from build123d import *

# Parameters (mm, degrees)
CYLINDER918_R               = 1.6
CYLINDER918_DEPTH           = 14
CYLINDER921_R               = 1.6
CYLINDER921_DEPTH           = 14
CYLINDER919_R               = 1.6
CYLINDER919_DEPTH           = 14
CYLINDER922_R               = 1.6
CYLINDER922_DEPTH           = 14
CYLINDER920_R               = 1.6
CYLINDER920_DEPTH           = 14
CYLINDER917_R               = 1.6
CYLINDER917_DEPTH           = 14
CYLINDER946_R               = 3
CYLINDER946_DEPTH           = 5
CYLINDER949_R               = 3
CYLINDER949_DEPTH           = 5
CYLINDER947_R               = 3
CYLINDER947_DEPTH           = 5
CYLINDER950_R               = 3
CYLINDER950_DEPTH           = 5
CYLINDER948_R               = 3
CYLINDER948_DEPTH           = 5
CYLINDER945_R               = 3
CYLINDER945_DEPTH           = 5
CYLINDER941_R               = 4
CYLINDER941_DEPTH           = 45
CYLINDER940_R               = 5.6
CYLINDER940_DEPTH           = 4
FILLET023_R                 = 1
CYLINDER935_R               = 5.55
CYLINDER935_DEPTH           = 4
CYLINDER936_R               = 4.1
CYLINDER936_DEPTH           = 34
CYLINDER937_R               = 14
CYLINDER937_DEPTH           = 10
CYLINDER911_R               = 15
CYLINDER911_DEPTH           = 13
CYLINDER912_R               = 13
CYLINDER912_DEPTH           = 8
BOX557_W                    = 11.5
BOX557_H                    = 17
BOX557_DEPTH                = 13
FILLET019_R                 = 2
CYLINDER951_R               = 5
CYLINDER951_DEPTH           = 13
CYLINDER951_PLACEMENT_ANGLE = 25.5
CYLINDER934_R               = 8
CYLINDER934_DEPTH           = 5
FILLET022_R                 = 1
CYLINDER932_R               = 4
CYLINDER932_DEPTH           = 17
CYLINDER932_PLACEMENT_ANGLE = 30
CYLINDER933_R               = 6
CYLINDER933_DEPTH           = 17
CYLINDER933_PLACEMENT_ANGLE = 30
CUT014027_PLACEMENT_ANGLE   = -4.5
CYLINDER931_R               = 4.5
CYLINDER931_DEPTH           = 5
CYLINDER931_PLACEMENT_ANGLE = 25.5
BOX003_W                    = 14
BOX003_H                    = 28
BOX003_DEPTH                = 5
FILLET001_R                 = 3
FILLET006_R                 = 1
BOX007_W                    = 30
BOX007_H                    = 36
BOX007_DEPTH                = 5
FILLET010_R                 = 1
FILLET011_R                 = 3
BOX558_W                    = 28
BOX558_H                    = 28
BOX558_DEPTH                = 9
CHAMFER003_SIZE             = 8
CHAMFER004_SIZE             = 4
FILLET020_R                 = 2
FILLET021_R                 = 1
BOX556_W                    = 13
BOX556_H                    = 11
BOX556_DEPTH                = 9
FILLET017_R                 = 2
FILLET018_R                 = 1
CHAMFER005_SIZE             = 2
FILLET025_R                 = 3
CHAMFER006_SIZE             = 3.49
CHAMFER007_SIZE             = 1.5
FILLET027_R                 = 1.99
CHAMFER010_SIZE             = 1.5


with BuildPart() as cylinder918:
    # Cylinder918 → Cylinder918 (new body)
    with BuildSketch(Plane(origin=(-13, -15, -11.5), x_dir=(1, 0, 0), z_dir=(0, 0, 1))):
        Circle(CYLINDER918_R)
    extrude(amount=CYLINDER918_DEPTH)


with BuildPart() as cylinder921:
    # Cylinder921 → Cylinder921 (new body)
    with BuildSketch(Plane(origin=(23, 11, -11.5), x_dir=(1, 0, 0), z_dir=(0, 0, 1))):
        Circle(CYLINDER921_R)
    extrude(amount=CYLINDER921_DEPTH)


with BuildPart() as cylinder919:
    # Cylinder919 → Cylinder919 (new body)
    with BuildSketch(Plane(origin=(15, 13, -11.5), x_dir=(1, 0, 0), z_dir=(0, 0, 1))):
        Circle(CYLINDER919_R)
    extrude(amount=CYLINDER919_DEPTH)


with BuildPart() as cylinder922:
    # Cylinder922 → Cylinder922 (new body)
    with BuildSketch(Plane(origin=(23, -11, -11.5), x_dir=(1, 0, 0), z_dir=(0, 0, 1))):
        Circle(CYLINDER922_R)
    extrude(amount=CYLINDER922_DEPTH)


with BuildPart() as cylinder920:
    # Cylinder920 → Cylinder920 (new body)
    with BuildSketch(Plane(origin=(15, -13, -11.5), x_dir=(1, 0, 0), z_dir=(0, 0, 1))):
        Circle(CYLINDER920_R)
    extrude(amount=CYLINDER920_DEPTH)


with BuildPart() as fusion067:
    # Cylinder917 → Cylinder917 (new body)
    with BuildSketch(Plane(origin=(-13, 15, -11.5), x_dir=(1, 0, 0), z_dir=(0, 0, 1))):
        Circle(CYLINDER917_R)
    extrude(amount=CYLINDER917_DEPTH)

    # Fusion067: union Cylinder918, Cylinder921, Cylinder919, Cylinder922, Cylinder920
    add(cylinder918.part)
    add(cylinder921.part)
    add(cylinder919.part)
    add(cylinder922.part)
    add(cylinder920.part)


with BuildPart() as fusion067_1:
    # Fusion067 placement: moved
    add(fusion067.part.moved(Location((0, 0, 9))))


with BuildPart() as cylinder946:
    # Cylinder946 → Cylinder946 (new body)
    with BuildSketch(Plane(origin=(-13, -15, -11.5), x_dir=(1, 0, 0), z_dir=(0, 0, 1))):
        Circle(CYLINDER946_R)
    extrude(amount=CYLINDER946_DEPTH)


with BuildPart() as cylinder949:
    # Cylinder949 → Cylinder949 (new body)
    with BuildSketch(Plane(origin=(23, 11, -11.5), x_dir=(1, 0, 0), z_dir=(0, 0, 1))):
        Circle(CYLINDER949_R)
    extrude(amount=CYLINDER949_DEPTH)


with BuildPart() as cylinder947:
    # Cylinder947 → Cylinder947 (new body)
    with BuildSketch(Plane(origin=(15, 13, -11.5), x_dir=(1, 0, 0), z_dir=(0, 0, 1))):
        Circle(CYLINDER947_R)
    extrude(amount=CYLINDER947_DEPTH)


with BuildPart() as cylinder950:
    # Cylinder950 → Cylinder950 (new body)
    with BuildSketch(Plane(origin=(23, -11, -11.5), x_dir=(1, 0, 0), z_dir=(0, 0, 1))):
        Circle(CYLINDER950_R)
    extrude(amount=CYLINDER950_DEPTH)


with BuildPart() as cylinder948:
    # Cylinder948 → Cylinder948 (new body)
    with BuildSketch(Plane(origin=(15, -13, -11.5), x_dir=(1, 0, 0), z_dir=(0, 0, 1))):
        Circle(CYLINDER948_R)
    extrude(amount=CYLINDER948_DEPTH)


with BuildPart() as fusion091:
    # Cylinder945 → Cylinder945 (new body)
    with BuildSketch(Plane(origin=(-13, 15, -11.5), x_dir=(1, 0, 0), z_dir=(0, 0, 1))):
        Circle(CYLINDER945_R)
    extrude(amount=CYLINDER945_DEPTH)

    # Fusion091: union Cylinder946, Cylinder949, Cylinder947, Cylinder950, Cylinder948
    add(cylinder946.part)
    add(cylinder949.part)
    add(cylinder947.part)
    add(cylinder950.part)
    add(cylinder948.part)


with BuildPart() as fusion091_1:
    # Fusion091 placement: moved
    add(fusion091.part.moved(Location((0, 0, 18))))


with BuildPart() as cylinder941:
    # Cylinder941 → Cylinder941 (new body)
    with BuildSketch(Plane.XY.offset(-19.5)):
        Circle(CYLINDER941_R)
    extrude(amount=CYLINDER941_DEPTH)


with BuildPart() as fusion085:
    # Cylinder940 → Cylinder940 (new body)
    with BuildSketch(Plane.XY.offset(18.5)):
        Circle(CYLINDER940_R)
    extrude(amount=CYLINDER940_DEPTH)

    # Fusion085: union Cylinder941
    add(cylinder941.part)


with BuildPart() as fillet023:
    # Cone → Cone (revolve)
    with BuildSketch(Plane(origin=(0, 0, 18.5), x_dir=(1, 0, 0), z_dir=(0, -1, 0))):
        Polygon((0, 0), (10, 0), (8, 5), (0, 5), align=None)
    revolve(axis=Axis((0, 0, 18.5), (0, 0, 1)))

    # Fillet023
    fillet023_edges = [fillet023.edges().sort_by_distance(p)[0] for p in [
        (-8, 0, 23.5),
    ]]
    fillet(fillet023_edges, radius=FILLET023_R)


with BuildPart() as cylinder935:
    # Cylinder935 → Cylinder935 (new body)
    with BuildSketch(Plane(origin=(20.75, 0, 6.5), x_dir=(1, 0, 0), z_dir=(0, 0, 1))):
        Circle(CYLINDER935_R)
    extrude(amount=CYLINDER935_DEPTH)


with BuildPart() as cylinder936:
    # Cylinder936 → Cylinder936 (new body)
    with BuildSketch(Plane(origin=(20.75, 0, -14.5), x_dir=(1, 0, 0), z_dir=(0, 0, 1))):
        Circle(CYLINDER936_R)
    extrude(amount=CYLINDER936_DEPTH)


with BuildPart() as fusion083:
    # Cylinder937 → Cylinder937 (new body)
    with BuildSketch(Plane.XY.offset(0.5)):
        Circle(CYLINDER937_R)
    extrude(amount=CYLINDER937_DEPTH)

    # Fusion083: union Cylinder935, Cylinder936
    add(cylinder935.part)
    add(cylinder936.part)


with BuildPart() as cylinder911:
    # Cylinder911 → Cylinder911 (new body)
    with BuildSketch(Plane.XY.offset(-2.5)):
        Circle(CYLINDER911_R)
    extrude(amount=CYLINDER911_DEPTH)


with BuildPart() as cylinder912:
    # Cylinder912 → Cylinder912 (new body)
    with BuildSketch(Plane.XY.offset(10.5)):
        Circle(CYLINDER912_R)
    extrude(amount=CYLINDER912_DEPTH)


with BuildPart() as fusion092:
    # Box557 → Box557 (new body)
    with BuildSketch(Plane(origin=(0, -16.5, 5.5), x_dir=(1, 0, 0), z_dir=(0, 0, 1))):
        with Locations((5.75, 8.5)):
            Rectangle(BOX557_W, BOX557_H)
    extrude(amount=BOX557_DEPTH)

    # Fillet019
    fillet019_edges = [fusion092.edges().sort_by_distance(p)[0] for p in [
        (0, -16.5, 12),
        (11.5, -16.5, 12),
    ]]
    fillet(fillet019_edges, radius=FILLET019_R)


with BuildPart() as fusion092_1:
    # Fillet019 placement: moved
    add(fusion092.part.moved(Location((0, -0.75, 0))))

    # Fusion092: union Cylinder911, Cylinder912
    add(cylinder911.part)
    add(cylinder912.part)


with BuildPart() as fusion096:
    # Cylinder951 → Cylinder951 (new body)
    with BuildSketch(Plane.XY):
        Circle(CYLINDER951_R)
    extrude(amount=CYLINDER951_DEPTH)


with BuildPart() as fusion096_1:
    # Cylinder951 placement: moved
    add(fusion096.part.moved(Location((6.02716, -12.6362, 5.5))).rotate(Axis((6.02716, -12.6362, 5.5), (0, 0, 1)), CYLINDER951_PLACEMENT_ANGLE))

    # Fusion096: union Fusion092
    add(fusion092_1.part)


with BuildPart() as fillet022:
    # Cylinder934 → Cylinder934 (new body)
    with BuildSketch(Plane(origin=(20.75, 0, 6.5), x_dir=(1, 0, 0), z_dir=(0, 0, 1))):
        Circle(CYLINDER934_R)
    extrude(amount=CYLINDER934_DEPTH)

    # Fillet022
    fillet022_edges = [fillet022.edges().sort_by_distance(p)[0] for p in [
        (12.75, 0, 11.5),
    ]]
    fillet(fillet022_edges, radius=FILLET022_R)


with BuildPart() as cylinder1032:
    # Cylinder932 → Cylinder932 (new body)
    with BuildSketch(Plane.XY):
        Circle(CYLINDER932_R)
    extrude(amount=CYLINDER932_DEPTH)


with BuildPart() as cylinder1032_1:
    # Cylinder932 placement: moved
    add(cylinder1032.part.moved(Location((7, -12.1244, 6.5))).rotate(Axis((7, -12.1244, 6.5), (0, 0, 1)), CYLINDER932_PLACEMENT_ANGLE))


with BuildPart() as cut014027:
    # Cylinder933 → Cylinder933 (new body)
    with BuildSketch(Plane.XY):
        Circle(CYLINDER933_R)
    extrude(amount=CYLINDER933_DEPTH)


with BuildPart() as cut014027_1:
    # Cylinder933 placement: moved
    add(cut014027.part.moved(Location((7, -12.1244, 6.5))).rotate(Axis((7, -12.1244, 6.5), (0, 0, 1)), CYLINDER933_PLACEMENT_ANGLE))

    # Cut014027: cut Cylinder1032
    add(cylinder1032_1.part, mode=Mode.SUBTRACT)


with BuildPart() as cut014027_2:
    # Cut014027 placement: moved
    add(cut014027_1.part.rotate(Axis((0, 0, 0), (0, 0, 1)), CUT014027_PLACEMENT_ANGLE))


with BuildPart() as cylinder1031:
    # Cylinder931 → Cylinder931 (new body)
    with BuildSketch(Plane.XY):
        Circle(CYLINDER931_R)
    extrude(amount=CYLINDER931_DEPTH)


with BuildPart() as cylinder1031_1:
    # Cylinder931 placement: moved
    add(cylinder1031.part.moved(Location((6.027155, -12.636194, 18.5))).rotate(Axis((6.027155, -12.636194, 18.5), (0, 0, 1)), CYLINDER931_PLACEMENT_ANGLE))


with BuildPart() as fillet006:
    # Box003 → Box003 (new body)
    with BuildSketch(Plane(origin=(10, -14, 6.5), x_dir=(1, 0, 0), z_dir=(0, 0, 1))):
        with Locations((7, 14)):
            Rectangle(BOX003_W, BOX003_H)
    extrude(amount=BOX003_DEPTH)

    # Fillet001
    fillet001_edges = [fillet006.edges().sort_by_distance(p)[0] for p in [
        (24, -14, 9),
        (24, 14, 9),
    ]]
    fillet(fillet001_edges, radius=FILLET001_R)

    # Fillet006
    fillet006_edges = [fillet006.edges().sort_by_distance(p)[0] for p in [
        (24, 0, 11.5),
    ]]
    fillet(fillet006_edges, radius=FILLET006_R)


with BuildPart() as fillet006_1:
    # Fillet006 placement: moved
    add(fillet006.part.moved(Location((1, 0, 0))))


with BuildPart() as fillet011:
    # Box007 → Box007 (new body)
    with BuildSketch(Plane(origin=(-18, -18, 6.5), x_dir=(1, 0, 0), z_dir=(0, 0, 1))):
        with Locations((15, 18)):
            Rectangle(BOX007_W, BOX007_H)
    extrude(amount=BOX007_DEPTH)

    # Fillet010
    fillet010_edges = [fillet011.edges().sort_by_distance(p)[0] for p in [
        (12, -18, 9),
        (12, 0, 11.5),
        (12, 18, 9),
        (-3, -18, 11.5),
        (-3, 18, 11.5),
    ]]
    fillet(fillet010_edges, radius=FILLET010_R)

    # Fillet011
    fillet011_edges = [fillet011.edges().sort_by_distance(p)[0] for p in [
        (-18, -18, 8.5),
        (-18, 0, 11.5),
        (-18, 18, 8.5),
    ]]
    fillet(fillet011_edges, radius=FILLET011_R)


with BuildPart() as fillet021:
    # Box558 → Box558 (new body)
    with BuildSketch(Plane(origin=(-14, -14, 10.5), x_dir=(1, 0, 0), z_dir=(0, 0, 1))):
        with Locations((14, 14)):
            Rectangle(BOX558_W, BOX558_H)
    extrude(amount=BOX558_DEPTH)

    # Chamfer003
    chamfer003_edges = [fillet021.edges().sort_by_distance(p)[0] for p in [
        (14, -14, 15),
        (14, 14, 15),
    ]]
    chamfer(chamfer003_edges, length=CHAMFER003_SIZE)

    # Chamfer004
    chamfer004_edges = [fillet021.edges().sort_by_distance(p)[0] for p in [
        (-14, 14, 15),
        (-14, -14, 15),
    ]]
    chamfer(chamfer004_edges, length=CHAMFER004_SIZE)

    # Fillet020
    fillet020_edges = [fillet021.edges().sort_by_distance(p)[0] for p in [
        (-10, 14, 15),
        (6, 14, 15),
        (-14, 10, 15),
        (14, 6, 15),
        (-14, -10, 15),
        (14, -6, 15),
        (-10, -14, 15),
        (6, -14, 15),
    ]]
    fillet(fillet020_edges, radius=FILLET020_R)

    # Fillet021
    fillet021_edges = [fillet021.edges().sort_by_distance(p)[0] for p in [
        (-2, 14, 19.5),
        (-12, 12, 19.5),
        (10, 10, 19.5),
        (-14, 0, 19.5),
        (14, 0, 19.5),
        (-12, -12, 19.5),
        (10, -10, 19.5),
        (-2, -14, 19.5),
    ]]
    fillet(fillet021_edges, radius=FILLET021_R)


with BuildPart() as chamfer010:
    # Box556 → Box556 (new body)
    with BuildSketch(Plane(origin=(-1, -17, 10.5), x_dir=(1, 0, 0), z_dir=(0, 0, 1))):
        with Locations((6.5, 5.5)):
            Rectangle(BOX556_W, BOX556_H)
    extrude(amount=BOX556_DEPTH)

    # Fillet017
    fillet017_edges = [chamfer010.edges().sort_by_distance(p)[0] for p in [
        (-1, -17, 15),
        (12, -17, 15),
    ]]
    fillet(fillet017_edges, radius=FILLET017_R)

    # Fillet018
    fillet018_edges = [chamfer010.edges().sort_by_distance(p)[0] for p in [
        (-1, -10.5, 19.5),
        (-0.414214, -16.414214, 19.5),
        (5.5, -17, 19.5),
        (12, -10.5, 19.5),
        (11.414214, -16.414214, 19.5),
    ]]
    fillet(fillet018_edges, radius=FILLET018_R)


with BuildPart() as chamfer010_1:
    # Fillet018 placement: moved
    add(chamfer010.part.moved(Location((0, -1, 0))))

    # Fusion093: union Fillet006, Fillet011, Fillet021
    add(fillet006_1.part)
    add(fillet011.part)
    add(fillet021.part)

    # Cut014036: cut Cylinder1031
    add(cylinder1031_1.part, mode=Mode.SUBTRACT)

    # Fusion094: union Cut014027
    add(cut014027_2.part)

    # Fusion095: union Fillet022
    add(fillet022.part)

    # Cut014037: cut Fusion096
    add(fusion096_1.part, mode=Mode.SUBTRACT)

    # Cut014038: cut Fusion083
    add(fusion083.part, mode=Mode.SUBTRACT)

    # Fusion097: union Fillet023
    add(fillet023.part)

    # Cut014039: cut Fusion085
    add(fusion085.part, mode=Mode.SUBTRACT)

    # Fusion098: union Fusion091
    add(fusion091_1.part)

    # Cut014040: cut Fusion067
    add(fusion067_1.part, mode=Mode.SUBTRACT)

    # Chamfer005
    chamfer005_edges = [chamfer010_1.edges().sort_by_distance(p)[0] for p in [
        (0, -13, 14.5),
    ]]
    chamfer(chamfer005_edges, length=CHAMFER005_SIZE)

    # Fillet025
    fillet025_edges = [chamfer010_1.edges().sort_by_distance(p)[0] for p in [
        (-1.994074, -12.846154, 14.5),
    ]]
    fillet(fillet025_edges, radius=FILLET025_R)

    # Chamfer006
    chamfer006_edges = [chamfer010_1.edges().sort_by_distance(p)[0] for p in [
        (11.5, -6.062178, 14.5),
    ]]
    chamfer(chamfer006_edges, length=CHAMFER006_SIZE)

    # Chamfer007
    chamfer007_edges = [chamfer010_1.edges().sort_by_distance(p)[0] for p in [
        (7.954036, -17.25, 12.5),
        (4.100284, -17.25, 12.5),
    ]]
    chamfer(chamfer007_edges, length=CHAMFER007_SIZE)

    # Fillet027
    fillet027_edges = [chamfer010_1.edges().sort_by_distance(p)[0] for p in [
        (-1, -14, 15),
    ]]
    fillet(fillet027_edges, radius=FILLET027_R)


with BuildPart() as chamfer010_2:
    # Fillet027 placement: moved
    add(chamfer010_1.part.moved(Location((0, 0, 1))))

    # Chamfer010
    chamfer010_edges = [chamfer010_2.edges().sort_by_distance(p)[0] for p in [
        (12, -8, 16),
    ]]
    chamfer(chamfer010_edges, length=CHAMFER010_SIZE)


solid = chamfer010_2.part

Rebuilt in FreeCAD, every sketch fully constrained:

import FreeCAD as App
import Part
import Sketcher

V = App.Vector
Q = App.Units.Quantity


def edges_at(feature, points):
    """Names of the edges that pass closest to the given points."""
    edges = feature.Shape.Edges
    near = lambda p: min(range(len(edges)), key=lambda i: edges[i].distToShape(Part.Vertex(*p))[0])
    return sorted({f"Edge{near(p) + 1}" for p in points})


def add_polygon(sketch, points):
    """Adds a closed chain of lines whose ends are joined by coincident constraints."""
    first, n = sketch.GeometryCount, len(points)
    for a, b in zip(points, points[1:] + points[:1]):
        sketch.addGeometry(Part.LineSegment(App.Vector(*a, 0), App.Vector(*b, 0)), False)
    for i in range(n):
        sketch.addConstraint(Sketcher.Constraint("Coincident", first + i, 2, first + (i + 1) % n, 1))

doc = App.newDocument("Part")
body = doc.addObject("PartDesign::Body", "Body")

sketch1 = doc.addObject("Sketcher::SketchObject", "Sketch")
body.addObject(sketch1)
sketch1.AttachmentSupport = (doc.XY_Plane, [""])
sketch1.MapMode = "FlatFace"
sketch1.AttachmentOffset = App.Placement(V(0, 0, -11.5), App.Rotation())
sketch1.addGeometry(Part.Circle(V(-13, -15, 0), V(0, 0, 1), 1.6), False)
sketch1.addConstraint(Sketcher.Constraint("Diameter", 0, Q("3.2 mm")))
sketch1.addConstraint(Sketcher.Constraint("DistanceX", 0, 3, -1, 1, Q("13 mm")))
sketch1.addConstraint(Sketcher.Constraint("DistanceY", 0, 3, -1, 1, Q("15 mm")))
pad1 = doc.addObject("PartDesign::Pad", "Pad")
body.addObject(pad1)
pad1.Profile = sketch1
pad1.Length = 14
body2 = doc.addObject("PartDesign::Body", "Body001")

sketch2 = doc.addObject("Sketcher::SketchObject", "Sketch001")
body2.addObject(sketch2)
sketch2.AttachmentSupport = (doc.getObject("XY_Plane001"), [""])
sketch2.MapMode = "FlatFace"
sketch2.AttachmentOffset = App.Placement(V(0, 0, -11.5), App.Rotation())
sketch2.addGeometry(Part.Circle(V(23, 11, 0), V(0, 0, 1), 1.6), False)
sketch2.addConstraint(Sketcher.Constraint("Diameter", 0, Q("3.2 mm")))
sketch2.addConstraint(Sketcher.Constraint("DistanceX", -1, 1, 0, 3, Q("23 mm")))
sketch2.addConstraint(Sketcher.Constraint("DistanceY", -1, 1, 0, 3, Q("11 mm")))
pad2 = doc.addObject("PartDesign::Pad", "Pad001")
body2.addObject(pad2)
pad2.Profile = sketch2
pad2.Length = 14
body3 = doc.addObject("PartDesign::Body", "Body002")

sketch3 = doc.addObject("Sketcher::SketchObject", "Sketch002")
body3.addObject(sketch3)
sketch3.AttachmentSupport = (doc.getObject("XY_Plane002"), [""])
sketch3.MapMode = "FlatFace"
sketch3.AttachmentOffset = App.Placement(V(0, 0, -11.5), App.Rotation())
sketch3.addGeometry(Part.Circle(V(15, 13, 0), V(0, 0, 1), 1.6), False)
sketch3.addConstraint(Sketcher.Constraint("Diameter", 0, Q("3.2 mm")))
sketch3.addConstraint(Sketcher.Constraint("DistanceX", -1, 1, 0, 3, Q("15 mm")))
sketch3.addConstraint(Sketcher.Constraint("DistanceY", -1, 1, 0, 3, Q("13 mm")))
pad3 = doc.addObject("PartDesign::Pad", "Pad002")
body3.addObject(pad3)
pad3.Profile = sketch3
pad3.Length = 14
body4 = doc.addObject("PartDesign::Body", "Body003")

sketch4 = doc.addObject("Sketcher::SketchObject", "Sketch003")
body4.addObject(sketch4)
sketch4.AttachmentSupport = (doc.getObject("XY_Plane003"), [""])
sketch4.MapMode = "FlatFace"
sketch4.AttachmentOffset = App.Placement(V(0, 0, -11.5), App.Rotation())
sketch4.addGeometry(Part.Circle(V(23, -11, 0), V(0, 0, 1), 1.6), False)
sketch4.addConstraint(Sketcher.Constraint("Diameter", 0, Q("3.2 mm")))
sketch4.addConstraint(Sketcher.Constraint("DistanceX", -1, 1, 0, 3, Q("23 mm")))
sketch4.addConstraint(Sketcher.Constraint("DistanceY", 0, 3, -1, 1, Q("11 mm")))
pad4 = doc.addObject("PartDesign::Pad", "Pad003")
body4.addObject(pad4)
pad4.Profile = sketch4
pad4.Length = 14
body5 = doc.addObject("PartDesign::Body", "Body004")

sketch5 = doc.addObject("Sketcher::SketchObject", "Sketch004")
body5.addObject(sketch5)
sketch5.AttachmentSupport = (doc.getObject("XY_Plane004"), [""])
sketch5.MapMode = "FlatFace"
sketch5.AttachmentOffset = App.Placement(V(0, 0, -11.5), App.Rotation())
sketch5.addGeometry(Part.Circle(V(15, -13, 0), V(0, 0, 1), 1.6), False)
sketch5.addConstraint(Sketcher.Constraint("Diameter", 0, Q("3.2 mm")))
sketch5.addConstraint(Sketcher.Constraint("DistanceX", -1, 1, 0, 3, Q("15 mm")))
sketch5.addConstraint(Sketcher.Constraint("DistanceY", 0, 3, -1, 1, Q("13 mm")))
pad5 = doc.addObject("PartDesign::Pad", "Pad004")
body5.addObject(pad5)
pad5.Profile = sketch5
pad5.Length = 14
body6 = doc.addObject("PartDesign::Body", "Body005")
body6.AllowCompound = True

sketch6 = doc.addObject("Sketcher::SketchObject", "Sketch005")
body6.addObject(sketch6)
sketch6.AttachmentSupport = (doc.getObject("XY_Plane005"), [""])
sketch6.MapMode = "FlatFace"
sketch6.AttachmentOffset = App.Placement(V(0, 0, -11.5), App.Rotation())
sketch6.addGeometry(Part.Circle(V(-13, 15, 0), V(0, 0, 1), 1.6), False)
sketch6.addConstraint(Sketcher.Constraint("Diameter", 0, Q("3.2 mm")))
sketch6.addConstraint(Sketcher.Constraint("DistanceX", 0, 3, -1, 1, Q("13 mm")))
sketch6.addConstraint(Sketcher.Constraint("DistanceY", -1, 1, 0, 3, Q("15 mm")))
pad6 = doc.addObject("PartDesign::Pad", "Pad005")
body6.addObject(pad6)
pad6.Profile = sketch6
pad6.Length = 14
doc.recompute()

boolean = doc.addObject("PartDesign::Boolean", "Boolean")
body6.addObject(boolean)
boolean.Type = "Fuse"
boolean.addObjects([body])
doc.recompute()

boolean2 = doc.addObject("PartDesign::Boolean", "Boolean001")
body6.addObject(boolean2)
boolean2.Type = "Fuse"
boolean2.addObjects([body2])
doc.recompute()

boolean3 = doc.addObject("PartDesign::Boolean", "Boolean002")
body6.addObject(boolean3)
boolean3.Type = "Fuse"
boolean3.addObjects([body3])
doc.recompute()

boolean4 = doc.addObject("PartDesign::Boolean", "Boolean003")
body6.addObject(boolean4)
boolean4.Type = "Fuse"
boolean4.addObjects([body4])
doc.recompute()

boolean5 = doc.addObject("PartDesign::Boolean", "Boolean004")
body6.addObject(boolean5)
boolean5.Type = "Fuse"
boolean5.addObjects([body5])
body7 = doc.addObject("PartDesign::Body", "Body006")
body7.AllowCompound = True
doc.recompute()

body6.Placement = App.Placement(V(0, 0, 9), App.Rotation(V(0, 0, 1), 0))
boolean6 = doc.addObject("PartDesign::Boolean", "Boolean005")
body7.addObject(boolean6)
boolean6.Type = "Fuse"
boolean6.addObjects([body6])
body8 = doc.addObject("PartDesign::Body", "Body007")

sketch7 = doc.addObject("Sketcher::SketchObject", "Sketch006")
body8.addObject(sketch7)
sketch7.AttachmentSupport = (doc.getObject("XY_Plane007"), [""])
sketch7.MapMode = "FlatFace"
sketch7.AttachmentOffset = App.Placement(V(0, 0, -11.5), App.Rotation())
sketch7.addGeometry(Part.Circle(V(-13, -15, 0), V(0, 0, 1), 3), False)
sketch7.addConstraint(Sketcher.Constraint("Diameter", 0, Q("6 mm")))
sketch7.addConstraint(Sketcher.Constraint("DistanceX", 0, 3, -1, 1, Q("13 mm")))
sketch7.addConstraint(Sketcher.Constraint("DistanceY", 0, 3, -1, 1, Q("15 mm")))
pad7 = doc.addObject("PartDesign::Pad", "Pad006")
body8.addObject(pad7)
pad7.Profile = sketch7
pad7.Length = 5
body9 = doc.addObject("PartDesign::Body", "Body008")

sketch8 = doc.addObject("Sketcher::SketchObject", "Sketch007")
body9.addObject(sketch8)
sketch8.AttachmentSupport = (doc.getObject("XY_Plane008"), [""])
sketch8.MapMode = "FlatFace"
sketch8.AttachmentOffset = App.Placement(V(0, 0, -11.5), App.Rotation())
sketch8.addGeometry(Part.Circle(V(23, 11, 0), V(0, 0, 1), 3), False)
sketch8.addConstraint(Sketcher.Constraint("Diameter", 0, Q("6 mm")))
sketch8.addConstraint(Sketcher.Constraint("DistanceX", -1, 1, 0, 3, Q("23 mm")))
sketch8.addConstraint(Sketcher.Constraint("DistanceY", -1, 1, 0, 3, Q("11 mm")))
pad8 = doc.addObject("PartDesign::Pad", "Pad007")
body9.addObject(pad8)
pad8.Profile = sketch8
pad8.Length = 5
body10 = doc.addObject("PartDesign::Body", "Body009")

sketch9 = doc.addObject("Sketcher::SketchObject", "Sketch008")
body10.addObject(sketch9)
sketch9.AttachmentSupport = (doc.getObject("XY_Plane009"), [""])
sketch9.MapMode = "FlatFace"
sketch9.AttachmentOffset = App.Placement(V(0, 0, -11.5), App.Rotation())
sketch9.addGeometry(Part.Circle(V(15, 13, 0), V(0, 0, 1), 3), False)
sketch9.addConstraint(Sketcher.Constraint("Diameter", 0, Q("6 mm")))
sketch9.addConstraint(Sketcher.Constraint("DistanceX", -1, 1, 0, 3, Q("15 mm")))
sketch9.addConstraint(Sketcher.Constraint("DistanceY", -1, 1, 0, 3, Q("13 mm")))
pad9 = doc.addObject("PartDesign::Pad", "Pad008")
body10.addObject(pad9)
pad9.Profile = sketch9
pad9.Length = 5
body11 = doc.addObject("PartDesign::Body", "Body010")

sketch10 = doc.addObject("Sketcher::SketchObject", "Sketch009")
body11.addObject(sketch10)
sketch10.AttachmentSupport = (doc.getObject("XY_Plane010"), [""])
sketch10.MapMode = "FlatFace"
sketch10.AttachmentOffset = App.Placement(V(0, 0, -11.5), App.Rotation())
sketch10.addGeometry(Part.Circle(V(23, -11, 0), V(0, 0, 1), 3), False)
sketch10.addConstraint(Sketcher.Constraint("Diameter", 0, Q("6 mm")))
sketch10.addConstraint(Sketcher.Constraint("DistanceX", -1, 1, 0, 3, Q("23 mm")))
sketch10.addConstraint(Sketcher.Constraint("DistanceY", 0, 3, -1, 1, Q("11 mm")))
pad10 = doc.addObject("PartDesign::Pad", "Pad009")
body11.addObject(pad10)
pad10.Profile = sketch10
pad10.Length = 5
body12 = doc.addObject("PartDesign::Body", "Body011")

sketch11 = doc.addObject("Sketcher::SketchObject", "Sketch010")
body12.addObject(sketch11)
sketch11.AttachmentSupport = (doc.getObject("XY_Plane011"), [""])
sketch11.MapMode = "FlatFace"
sketch11.AttachmentOffset = App.Placement(V(0, 0, -11.5), App.Rotation())
sketch11.addGeometry(Part.Circle(V(15, -13, 0), V(0, 0, 1), 3), False)
sketch11.addConstraint(Sketcher.Constraint("Diameter", 0, Q("6 mm")))
sketch11.addConstraint(Sketcher.Constraint("DistanceX", -1, 1, 0, 3, Q("15 mm")))
sketch11.addConstraint(Sketcher.Constraint("DistanceY", 0, 3, -1, 1, Q("13 mm")))
pad11 = doc.addObject("PartDesign::Pad", "Pad010")
body12.addObject(pad11)
pad11.Profile = sketch11
pad11.Length = 5
body13 = doc.addObject("PartDesign::Body", "Body012")
body13.AllowCompound = True

sketch12 = doc.addObject("Sketcher::SketchObject", "Sketch011")
body13.addObject(sketch12)
sketch12.AttachmentSupport = (doc.getObject("XY_Plane012"), [""])
sketch12.MapMode = "FlatFace"
sketch12.AttachmentOffset = App.Placement(V(0, 0, -11.5), App.Rotation())
sketch12.addGeometry(Part.Circle(V(-13, 15, 0), V(0, 0, 1), 3), False)
sketch12.addConstraint(Sketcher.Constraint("Diameter", 0, Q("6 mm")))
sketch12.addConstraint(Sketcher.Constraint("DistanceX", 0, 3, -1, 1, Q("13 mm")))
sketch12.addConstraint(Sketcher.Constraint("DistanceY", -1, 1, 0, 3, Q("15 mm")))
pad12 = doc.addObject("PartDesign::Pad", "Pad011")
body13.addObject(pad12)
pad12.Profile = sketch12
pad12.Length = 5
doc.recompute()

boolean7 = doc.addObject("PartDesign::Boolean", "Boolean006")
body13.addObject(boolean7)
boolean7.Type = "Fuse"
boolean7.addObjects([body8])
doc.recompute()

boolean8 = doc.addObject("PartDesign::Boolean", "Boolean007")
body13.addObject(boolean8)
boolean8.Type = "Fuse"
boolean8.addObjects([body9])
doc.recompute()

boolean9 = doc.addObject("PartDesign::Boolean", "Boolean008")
body13.addObject(boolean9)
boolean9.Type = "Fuse"
boolean9.addObjects([body10])
doc.recompute()

boolean10 = doc.addObject("PartDesign::Boolean", "Boolean009")
body13.addObject(boolean10)
boolean10.Type = "Fuse"
boolean10.addObjects([body11])
doc.recompute()

boolean11 = doc.addObject("PartDesign::Boolean", "Boolean010")
body13.addObject(boolean11)
boolean11.Type = "Fuse"
boolean11.addObjects([body12])
body14 = doc.addObject("PartDesign::Body", "Body013")
body14.AllowCompound = True
doc.recompute()

body13.Placement = App.Placement(V(0, 0, 18), App.Rotation(V(0, 0, 1), 0))
boolean12 = doc.addObject("PartDesign::Boolean", "Boolean011")
body14.addObject(boolean12)
boolean12.Type = "Fuse"
boolean12.addObjects([body13])
body15 = doc.addObject("PartDesign::Body", "Body014")

sketch13 = doc.addObject("Sketcher::SketchObject", "Sketch012")
body15.addObject(sketch13)
sketch13.AttachmentSupport = (doc.getObject("XY_Plane014"), [""])
sketch13.MapMode = "FlatFace"
sketch13.AttachmentOffset = App.Placement(V(0, 0, -19.5), App.Rotation())
sketch13.addGeometry(Part.Circle(V(0, 0, 0), V(0, 0, 1), 4), False)
sketch13.addConstraint(Sketcher.Constraint("Coincident", 0, 3, -1, 1))
sketch13.addConstraint(Sketcher.Constraint("Diameter", 0, Q("8 mm")))
pad13 = doc.addObject("PartDesign::Pad", "Pad012")
body15.addObject(pad13)
pad13.Profile = sketch13
pad13.Length = 45
body16 = doc.addObject("PartDesign::Body", "Body015")

sketch14 = doc.addObject("Sketcher::SketchObject", "Sketch013")
body16.addObject(sketch14)
sketch14.AttachmentSupport = (doc.getObject("XY_Plane015"), [""])
sketch14.MapMode = "FlatFace"
sketch14.AttachmentOffset = App.Placement(V(0, 0, 18.5), App.Rotation())
sketch14.addGeometry(Part.Circle(V(0, 0, 0), V(0, 0, 1), 6), False)
sketch14.addConstraint(Sketcher.Constraint("Coincident", 0, 3, -1, 1))
sketch14.addConstraint(Sketcher.Constraint("Diameter", 0, Q("11.2 mm")))
pad14 = doc.addObject("PartDesign::Pad", "Pad013")
body16.addObject(pad14)
pad14.Profile = sketch14
pad14.Length = 4
doc.recompute()

boolean13 = doc.addObject("PartDesign::Boolean", "Boolean012")
body16.addObject(boolean13)
boolean13.Type = "Fuse"
boolean13.addObjects([body15])
body17 = doc.addObject("PartDesign::Body", "Body016")

sketch15 = doc.addObject("Sketcher::SketchObject", "Sketch014")
body17.addObject(sketch15)
sketch15.AttachmentSupport = (doc.getObject("XZ_Plane016"), [""])
sketch15.MapMode = "FlatFace"
add_polygon(sketch15, [(0, 18), (10, 18), (8, 24), (0, 24)])
sketch15.addConstraint(Sketcher.Constraint("Horizontal", 0))
sketch15.addConstraint(Sketcher.Constraint("Horizontal", 2))
sketch15.addConstraint(Sketcher.Constraint("Vertical", 3))
sketch15.addConstraint(Sketcher.Constraint("PointOnObject", 2, 2, -2))
sketch15.addConstraint(Sketcher.Constraint("DistanceX", 0, 1, 0, 2, Q("10 mm")))
sketch15.addConstraint(Sketcher.Constraint("DistanceX", 2, 2, 2, 1, Q("8 mm")))
sketch15.addConstraint(Sketcher.Constraint("DistanceY", 3, 2, 3, 1, Q("5 mm")))
sketch15.addConstraint(Sketcher.Constraint("DistanceY", -1, 1, 0, 2, Q("18.5 mm")))
revolution = doc.addObject("PartDesign::Revolution", "Revolution")
body17.addObject(revolution)
revolution.Profile = sketch15
revolution.ReferenceAxis = (sketch15, ["V_Axis"])
revolution.Angle = 360
doc.recompute()

fillet = doc.addObject("PartDesign::Fillet", "Fillet")
body17.addObject(fillet)
fillet.Base = (revolution, edges_at(revolution, [(-8, 0, 23.5)]))
fillet.Radius = 1
body18 = doc.addObject("PartDesign::Body", "Body017")

sketch16 = doc.addObject("Sketcher::SketchObject", "Sketch015")
body18.addObject(sketch16)
sketch16.AttachmentSupport = (doc.getObject("XY_Plane017"), [""])
sketch16.MapMode = "FlatFace"
sketch16.AttachmentOffset = App.Placement(V(0, 0, 6.5), App.Rotation())
sketch16.addGeometry(Part.Circle(V(21, 0, 0), V(0, 0, 1), 6), False)
sketch16.addConstraint(Sketcher.Constraint("PointOnObject", 0, 3, -1))
sketch16.addConstraint(Sketcher.Constraint("Diameter", 0, Q("11.1 mm")))
sketch16.addConstraint(Sketcher.Constraint("DistanceX", -1, 1, 0, 3, Q("20.75 mm")))
pad15 = doc.addObject("PartDesign::Pad", "Pad014")
body18.addObject(pad15)
pad15.Profile = sketch16
pad15.Length = 4
body19 = doc.addObject("PartDesign::Body", "Body018")

sketch17 = doc.addObject("Sketcher::SketchObject", "Sketch016")
body19.addObject(sketch17)
sketch17.AttachmentSupport = (doc.getObject("XY_Plane018"), [""])
sketch17.MapMode = "FlatFace"
sketch17.AttachmentOffset = App.Placement(V(0, 0, -14.5), App.Rotation())
sketch17.addGeometry(Part.Circle(V(20.8, 0, 0), V(0, 0, 1), 4.1), False)
sketch17.addConstraint(Sketcher.Constraint("PointOnObject", 0, 3, -1))
sketch17.addConstraint(Sketcher.Constraint("Diameter", 0, Q("8.2 mm")))
sketch17.addConstraint(Sketcher.Constraint("DistanceX", -1, 1, 0, 3, Q("20.75 mm")))
pad16 = doc.addObject("PartDesign::Pad", "Pad015")
body19.addObject(pad16)
pad16.Profile = sketch17
pad16.Length = 34
body20 = doc.addObject("PartDesign::Body", "Body019")
body20.AllowCompound = True

sketch18 = doc.addObject("Sketcher::SketchObject", "Sketch017")
body20.addObject(sketch18)
sketch18.AttachmentSupport = (doc.getObject("XY_Plane019"), [""])
sketch18.MapMode = "FlatFace"
sketch18.AttachmentOffset = App.Placement(V(0, 0, 0.5), App.Rotation())
sketch18.addGeometry(Part.Circle(V(0, 0, 0), V(0, 0, 1), 14), False)
sketch18.addConstraint(Sketcher.Constraint("Coincident", 0, 3, -1, 1))
sketch18.addConstraint(Sketcher.Constraint("Diameter", 0, Q("28 mm")))
pad17 = doc.addObject("PartDesign::Pad", "Pad016")
body20.addObject(pad17)
pad17.Profile = sketch18
pad17.Length = 10
doc.recompute()

boolean14 = doc.addObject("PartDesign::Boolean", "Boolean013")
body20.addObject(boolean14)
boolean14.Type = "Fuse"
boolean14.addObjects([body18])
doc.recompute()

boolean15 = doc.addObject("PartDesign::Boolean", "Boolean014")
body20.addObject(boolean15)
boolean15.Type = "Fuse"
boolean15.addObjects([body19])
body21 = doc.addObject("PartDesign::Body", "Body020")

sketch19 = doc.addObject("Sketcher::SketchObject", "Sketch018")
body21.addObject(sketch19)
sketch19.AttachmentSupport = (doc.getObject("XY_Plane020"), [""])
sketch19.MapMode = "FlatFace"
sketch19.AttachmentOffset = App.Placement(V(0, 0, -2.5), App.Rotation())
sketch19.addGeometry(Part.Circle(V(0, 0, 0), V(0, 0, 1), 15), False)
sketch19.addConstraint(Sketcher.Constraint("Coincident", 0, 3, -1, 1))
sketch19.addConstraint(Sketcher.Constraint("Diameter", 0, Q("30 mm")))
pad18 = doc.addObject("PartDesign::Pad", "Pad017")
body21.addObject(pad18)
pad18.Profile = sketch19
pad18.Length = 13
body22 = doc.addObject("PartDesign::Body", "Body021")

sketch20 = doc.addObject("Sketcher::SketchObject", "Sketch019")
body22.addObject(sketch20)
sketch20.AttachmentSupport = (doc.getObject("XY_Plane021"), [""])
sketch20.MapMode = "FlatFace"
sketch20.AttachmentOffset = App.Placement(V(0, 0, 10.5), App.Rotation())
sketch20.addGeometry(Part.Circle(V(0, 0, 0), V(0, 0, 1), 13), False)
sketch20.addConstraint(Sketcher.Constraint("Coincident", 0, 3, -1, 1))
sketch20.addConstraint(Sketcher.Constraint("Diameter", 0, Q("26 mm")))
pad19 = doc.addObject("PartDesign::Pad", "Pad018")
body22.addObject(pad19)
pad19.Profile = sketch20
pad19.Length = 8
body23 = doc.addObject("PartDesign::Body", "Body022")

sketch21 = doc.addObject("Sketcher::SketchObject", "Sketch020")
body23.addObject(sketch21)
sketch21.AttachmentSupport = (doc.getObject("XY_Plane022"), [""])
sketch21.MapMode = "FlatFace"
sketch21.AttachmentOffset = App.Placement(V(0, 0, 5.5), App.Rotation())
add_polygon(sketch21, [(0, 0), (0, -16), (12, -16), (12, 0)])
sketch21.addConstraint(Sketcher.Constraint("Vertical", 0))
sketch21.addConstraint(Sketcher.Constraint("Horizontal", 1))
sketch21.addConstraint(Sketcher.Constraint("Vertical", 2))
sketch21.addConstraint(Sketcher.Constraint("Horizontal", 3))
sketch21.addConstraint(Sketcher.Constraint("PointOnObject", 0, 2, -2))
sketch21.addConstraint(Sketcher.Constraint("DistanceY", 0, 2, 0, 1, Q("17 mm")))
sketch21.addConstraint(Sketcher.Constraint("DistanceX", 1, 1, 1, 2, Q("11.5 mm")))
sketch21.addConstraint(Sketcher.Constraint("DistanceY", 0, 2, -1, 1, Q("16.5 mm")))
pad20 = doc.addObject("PartDesign::Pad", "Pad019")
body23.addObject(pad20)
pad20.Profile = sketch21
pad20.Length = 13
doc.recompute()

fillet2 = doc.addObject("PartDesign::Fillet", "Fillet001")
body23.addObject(fillet2)
fillet2.Base = (pad20, edges_at(pad20, [(0, -16.5, 12), (11.5, -16.5, 12)]))
fillet2.Radius = 2
body24 = doc.addObject("PartDesign::Body", "Body023")
doc.recompute()

body23.Placement = App.Placement(V(0, -0.75, 0), App.Rotation(V(0, 0, 1), 0))
boolean16 = doc.addObject("PartDesign::Boolean", "Boolean015")
body24.addObject(boolean16)
boolean16.Type = "Fuse"
boolean16.addObjects([body23])
doc.recompute()

boolean17 = doc.addObject("PartDesign::Boolean", "Boolean016")
body24.addObject(boolean17)
boolean17.Type = "Fuse"
boolean17.addObjects([body21])
doc.recompute()

boolean18 = doc.addObject("PartDesign::Boolean", "Boolean017")
body24.addObject(boolean18)
boolean18.Type = "Fuse"
boolean18.addObjects([body22])
body25 = doc.addObject("PartDesign::Body", "Body024")

sketch22 = doc.addObject("Sketcher::SketchObject", "Sketch021")
body25.addObject(sketch22)
sketch22.AttachmentSupport = (doc.getObject("XY_Plane024"), [""])
sketch22.MapMode = "FlatFace"
sketch22.addGeometry(Part.Circle(V(0, 0, 0), V(0, 0, 1), 5), False)
sketch22.addConstraint(Sketcher.Constraint("Coincident", 0, 3, -1, 1))
sketch22.addConstraint(Sketcher.Constraint("Diameter", 0, Q("10 mm")))
pad21 = doc.addObject("PartDesign::Pad", "Pad020")
body25.addObject(pad21)
pad21.Profile = sketch22
pad21.Length = 13
body26 = doc.addObject("PartDesign::Body", "Body025")
doc.recompute()

body25.Placement = App.Placement(V(6.02716, -12.6362, 5.5), App.Rotation(V(0, 0, 1), 25.5))
boolean19 = doc.addObject("PartDesign::Boolean", "Boolean018")
body26.addObject(boolean19)
boolean19.Type = "Fuse"
boolean19.addObjects([body25])
doc.recompute()

boolean20 = doc.addObject("PartDesign::Boolean", "Boolean019")
body26.addObject(boolean20)
boolean20.Type = "Fuse"
boolean20.addObjects([body24])
body27 = doc.addObject("PartDesign::Body", "Body026")

sketch23 = doc.addObject("Sketcher::SketchObject", "Sketch022")
body27.addObject(sketch23)
sketch23.AttachmentSupport = (doc.getObject("XY_Plane026"), [""])
sketch23.MapMode = "FlatFace"
sketch23.AttachmentOffset = App.Placement(V(0, 0, 6.5), App.Rotation())
sketch23.addGeometry(Part.Circle(V(21, 0, 0), V(0, 0, 1), 8), False)
sketch23.addConstraint(Sketcher.Constraint("PointOnObject", 0, 3, -1))
sketch23.addConstraint(Sketcher.Constraint("Diameter", 0, Q("16 mm")))
sketch23.addConstraint(Sketcher.Constraint("DistanceX", -1, 1, 0, 3, Q("20.75 mm")))
pad22 = doc.addObject("PartDesign::Pad", "Pad021")
body27.addObject(pad22)
pad22.Profile = sketch23
pad22.Length = 5
doc.recompute()

fillet3 = doc.addObject("PartDesign::Fillet", "Fillet002")
body27.addObject(fillet3)
fillet3.Base = (pad22, edges_at(pad22, [(12.75, 0, 11.5)]))
fillet3.Radius = 1
body28 = doc.addObject("PartDesign::Body", "Body027")

sketch24 = doc.addObject("Sketcher::SketchObject", "Sketch023")
body28.addObject(sketch24)
sketch24.AttachmentSupport = (doc.getObject("XY_Plane027"), [""])
sketch24.MapMode = "FlatFace"
sketch24.addGeometry(Part.Circle(V(0, 0, 0), V(0, 0, 1), 4), False)
sketch24.addConstraint(Sketcher.Constraint("Coincident", 0, 3, -1, 1))
sketch24.addConstraint(Sketcher.Constraint("Diameter", 0, Q("8 mm")))
pad23 = doc.addObject("PartDesign::Pad", "Pad022")
body28.addObject(pad23)
pad23.Profile = sketch24
pad23.Length = 17
body29 = doc.addObject("PartDesign::Body", "Body028")
doc.recompute()

body28.Placement = App.Placement(V(7, -12.1244, 6.5), App.Rotation(V(0, 0, 1), 30))
boolean21 = doc.addObject("PartDesign::Boolean", "Boolean020")
body29.addObject(boolean21)
boolean21.Type = "Fuse"
boolean21.addObjects([body28])
body30 = doc.addObject("PartDesign::Body", "Body029")

sketch25 = doc.addObject("Sketcher::SketchObject", "Sketch024")
body30.addObject(sketch25)
sketch25.AttachmentSupport = (doc.getObject("XY_Plane029"), [""])
sketch25.MapMode = "FlatFace"
sketch25.addGeometry(Part.Circle(V(0, 0, 0), V(0, 0, 1), 6), False)
sketch25.addConstraint(Sketcher.Constraint("Coincident", 0, 3, -1, 1))
sketch25.addConstraint(Sketcher.Constraint("Diameter", 0, Q("12 mm")))
pad24 = doc.addObject("PartDesign::Pad", "Pad023")
body30.addObject(pad24)
pad24.Profile = sketch25
pad24.Length = 17
body31 = doc.addObject("PartDesign::Body", "Body030")
doc.recompute()

body30.Placement = App.Placement(V(7, -12.1244, 6.5), App.Rotation(V(0, 0, 1), 30))
boolean22 = doc.addObject("PartDesign::Boolean", "Boolean021")
body31.addObject(boolean22)
boolean22.Type = "Fuse"
boolean22.addObjects([body30])
doc.recompute()

boolean23 = doc.addObject("PartDesign::Boolean", "Boolean022")
body31.addObject(boolean23)
boolean23.Type = "Cut"
boolean23.addObjects([body29])
body32 = doc.addObject("PartDesign::Body", "Body031")
doc.recompute()

body31.Placement = App.Placement(V(0, 0, 0), App.Rotation(V(0, 0, 1), 355.5))
boolean24 = doc.addObject("PartDesign::Boolean", "Boolean023")
body32.addObject(boolean24)
boolean24.Type = "Fuse"
boolean24.addObjects([body31])
body33 = doc.addObject("PartDesign::Body", "Body032")

sketch26 = doc.addObject("Sketcher::SketchObject", "Sketch025")
body33.addObject(sketch26)
sketch26.AttachmentSupport = (doc.getObject("XY_Plane032"), [""])
sketch26.MapMode = "FlatFace"
sketch26.addGeometry(Part.Circle(V(0, 0, 0), V(0, 0, 1), 4.5), False)
sketch26.addConstraint(Sketcher.Constraint("Coincident", 0, 3, -1, 1))
sketch26.addConstraint(Sketcher.Constraint("Diameter", 0, Q("9 mm")))
pad25 = doc.addObject("PartDesign::Pad", "Pad024")
body33.addObject(pad25)
pad25.Profile = sketch26
pad25.Length = 5
body34 = doc.addObject("PartDesign::Body", "Body033")
doc.recompute()

body33.Placement = App.Placement(V(6.027155, -12.636194, 18.5), App.Rotation(V(0, 0, 1), 25.5))
boolean25 = doc.addObject("PartDesign::Boolean", "Boolean024")
body34.addObject(boolean25)
boolean25.Type = "Fuse"
boolean25.addObjects([body33])
body35 = doc.addObject("PartDesign::Body", "Body034")

sketch27 = doc.addObject("Sketcher::SketchObject", "Sketch026")
body35.addObject(sketch27)
sketch27.AttachmentSupport = (doc.getObject("XY_Plane034"), [""])
sketch27.MapMode = "FlatFace"
sketch27.AttachmentOffset = App.Placement(V(0, 0, 6.5), App.Rotation())
add_polygon(sketch27, [(10, 14), (10, -14), (24, -14), (24, 14)])
sketch27.addConstraint(Sketcher.Constraint("Vertical", 0))
sketch27.addConstraint(Sketcher.Constraint("Horizontal", 1))
sketch27.addConstraint(Sketcher.Constraint("Vertical", 2))
sketch27.addConstraint(Sketcher.Constraint("Horizontal", 3))
sketch27.addConstraint(Sketcher.Constraint("DistanceX", 1, 1, 1, 2, Q("14 mm")))
sketch27.addConstraint(Sketcher.Constraint("DistanceY", 0, 2, 0, 1, Q("28 mm")))
sketch27.addConstraint(Sketcher.Constraint("DistanceX", -1, 1, 0, 2, Q("10 mm")))
sketch27.addConstraint(Sketcher.Constraint("DistanceY", 0, 2, -1, 1, Q("14 mm")))
pad26 = doc.addObject("PartDesign::Pad", "Pad025")
body35.addObject(pad26)
pad26.Profile = sketch27
pad26.Length = 5
doc.recompute()

fillet4 = doc.addObject("PartDesign::Fillet", "Fillet003")
body35.addObject(fillet4)
fillet4.Base = (pad26, edges_at(pad26, [(24, -14, 9), (24, 14, 9)]))
fillet4.Radius = 3
doc.recompute()

fillet5 = doc.addObject("PartDesign::Fillet", "Fillet004")
body35.addObject(fillet5)
fillet5.Base = (fillet4, edges_at(fillet4, [(24, 0, 11.5)]))
fillet5.Radius = 1
body36 = doc.addObject("PartDesign::Body", "Body035")
doc.recompute()

body35.Placement = App.Placement(V(1, 0, 0), App.Rotation(V(0, 0, 1), 0))
boolean26 = doc.addObject("PartDesign::Boolean", "Boolean025")
body36.addObject(boolean26)
boolean26.Type = "Fuse"
boolean26.addObjects([body35])
body37 = doc.addObject("PartDesign::Body", "Body036")

sketch28 = doc.addObject("Sketcher::SketchObject", "Sketch027")
body37.addObject(sketch28)
sketch28.AttachmentSupport = (doc.getObject("XY_Plane036"), [""])
sketch28.MapMode = "FlatFace"
sketch28.AttachmentOffset = App.Placement(V(0, 0, 6.5), App.Rotation())
add_polygon(sketch28, [(-18, 18), (-18, -18), (12, -18), (12, 18)])
sketch28.addConstraint(Sketcher.Constraint("Vertical", 0))
sketch28.addConstraint(Sketcher.Constraint("Horizontal", 1))
sketch28.addConstraint(Sketcher.Constraint("Vertical", 2))
sketch28.addConstraint(Sketcher.Constraint("Horizontal", 3))
sketch28.addConstraint(Sketcher.Constraint("DistanceX", 1, 1, 1, 2, Q("30 mm")))
sketch28.addConstraint(Sketcher.Constraint("DistanceY", 0, 2, 0, 1, Q("36 mm")))
sketch28.addConstraint(Sketcher.Constraint("DistanceX", 0, 2, -1, 1, Q("18 mm")))
sketch28.addConstraint(Sketcher.Constraint("DistanceY", 0, 2, -1, 1, Q("18 mm")))
pad27 = doc.addObject("PartDesign::Pad", "Pad026")
body37.addObject(pad27)
pad27.Profile = sketch28
pad27.Length = 5
doc.recompute()

fillet6 = doc.addObject("PartDesign::Fillet", "Fillet005")
body37.addObject(fillet6)
fillet6.Base = (pad27, edges_at(pad27, [
    (12, -18, 9),
    (12, 0, 11.5),
    (12, 18, 9),
    (-3, -18, 11.5),
    (-3, 18, 11.5),
]))
fillet6.Radius = 1
doc.recompute()

fillet7 = doc.addObject("PartDesign::Fillet", "Fillet006")
body37.addObject(fillet7)
fillet7.Base = (fillet6, edges_at(fillet6, [(-18, -18, 8.5), (-18, 0, 11.5), (-18, 18, 8.5)]))
fillet7.Radius = 3
body38 = doc.addObject("PartDesign::Body", "Body037")

sketch29 = doc.addObject("Sketcher::SketchObject", "Sketch028")
body38.addObject(sketch29)
sketch29.AttachmentSupport = (doc.getObject("XY_Plane037"), [""])
sketch29.MapMode = "FlatFace"
sketch29.AttachmentOffset = App.Placement(V(0, 0, 10.5), App.Rotation())
add_polygon(sketch29, [(-14, 14), (-14, -14), (14, -14), (14, 14)])
sketch29.addConstraint(Sketcher.Constraint("Vertical", 0))
sketch29.addConstraint(Sketcher.Constraint("Horizontal", 1))
sketch29.addConstraint(Sketcher.Constraint("Vertical", 2))
sketch29.addConstraint(Sketcher.Constraint("Horizontal", 3))
sketch29.addConstraint(Sketcher.Constraint("Symmetric", 0, 2, 2, 2, -1, 1))
sketch29.addConstraint(Sketcher.Constraint("Equal", 3, 0))
sketch29.addConstraint(Sketcher.Constraint("DistanceX", 1, 1, 1, 2, Q("28 mm")))
pad28 = doc.addObject("PartDesign::Pad", "Pad027")
body38.addObject(pad28)
pad28.Profile = sketch29
pad28.Length = 9
doc.recompute()

chamfer = doc.addObject("PartDesign::Chamfer", "Chamfer")
body38.addObject(chamfer)
chamfer.Base = (pad28, edges_at(pad28, [(14, -14, 15), (14, 14, 15)]))
chamfer.Size = 8
doc.recompute()

chamfer2 = doc.addObject("PartDesign::Chamfer", "Chamfer001")
body38.addObject(chamfer2)
chamfer2.Base = (chamfer, edges_at(chamfer, [(-14, 14, 15), (-14, -14, 15)]))
chamfer2.Size = 4
doc.recompute()

fillet8 = doc.addObject("PartDesign::Fillet", "Fillet007")
body38.addObject(fillet8)
fillet8.Base = (chamfer2, edges_at(chamfer2, [
    (-10, 14, 15),
    (6, 14, 15),
    (-14, 10, 15),
    (14, 6, 15),
    (-14, -10, 15),
    (14, -6, 15),
    (-10, -14, 15),
    (6, -14, 15),
]))
fillet8.Radius = 2
doc.recompute()

fillet9 = doc.addObject("PartDesign::Fillet", "Fillet008")
body38.addObject(fillet9)
fillet9.Base = (fillet8, edges_at(fillet8, [
    (-2, 14, 19.5),
    (-12, 12, 19.5),
    (10, 10, 19.5),
    (-14, 0, 19.5),
    (14, 0, 19.5),
    (-12, -12, 19.5),
    (10, -10, 19.5),
    (-2, -14, 19.5),
]))
fillet9.Radius = 1
body39 = doc.addObject("PartDesign::Body", "Body038")

sketch30 = doc.addObject("Sketcher::SketchObject", "Sketch029")
body39.addObject(sketch30)
sketch30.AttachmentSupport = (doc.getObject("XY_Plane038"), [""])
sketch30.MapMode = "FlatFace"
sketch30.AttachmentOffset = App.Placement(V(0, 0, 10.5), App.Rotation())
add_polygon(sketch30, [(-1, -6), (-1, -17), (12, -17), (12, -6)])
sketch30.addConstraint(Sketcher.Constraint("Vertical", 0))
sketch30.addConstraint(Sketcher.Constraint("Horizontal", 1))
sketch30.addConstraint(Sketcher.Constraint("Vertical", 2))
sketch30.addConstraint(Sketcher.Constraint("Horizontal", 3))
sketch30.addConstraint(Sketcher.Constraint("DistanceX", 1, 1, 1, 2, Q("13 mm")))
sketch30.addConstraint(Sketcher.Constraint("DistanceY", 0, 2, 0, 1, Q("11 mm")))
sketch30.addConstraint(Sketcher.Constraint("DistanceX", 0, 2, -1, 1, Q("1 mm")))
sketch30.addConstraint(Sketcher.Constraint("DistanceY", 0, 2, -1, 1, Q("17 mm")))
pad29 = doc.addObject("PartDesign::Pad", "Pad028")
body39.addObject(pad29)
pad29.Profile = sketch30
pad29.Length = 9
doc.recompute()

fillet10 = doc.addObject("PartDesign::Fillet", "Fillet009")
body39.addObject(fillet10)
fillet10.Base = (pad29, edges_at(pad29, [(-1, -17, 15), (12, -17, 15)]))
fillet10.Radius = 2
doc.recompute()

fillet11 = doc.addObject("PartDesign::Fillet", "Fillet010")
body39.addObject(fillet11)
fillet11.Base = (fillet10, edges_at(fillet10, [
    (-1, -10.5, 19.5),
    (-0.414, -16.414, 19.5),
    (5.5, -17, 19.5),
    (12, -10.5, 19.5),
    (11.414, -16.414, 19.5),
]))
fillet11.Radius = 1
body40 = doc.addObject("PartDesign::Body", "Body039")
doc.recompute()

body39.Placement = App.Placement(V(0, -1, 0), App.Rotation(V(0, 0, 1), 0))
boolean27 = doc.addObject("PartDesign::Boolean", "Boolean026")
body40.addObject(boolean27)
boolean27.Type = "Fuse"
boolean27.addObjects([body39])
doc.recompute()

boolean28 = doc.addObject("PartDesign::Boolean", "Boolean027")
body40.addObject(boolean28)
boolean28.Type = "Fuse"
boolean28.addObjects([body36])
doc.recompute()

boolean29 = doc.addObject("PartDesign::Boolean", "Boolean028")
body40.addObject(boolean29)
boolean29.Type = "Fuse"
boolean29.addObjects([body37])
doc.recompute()

boolean30 = doc.addObject("PartDesign::Boolean", "Boolean029")
body40.addObject(boolean30)
boolean30.Type = "Fuse"
boolean30.addObjects([body38])
doc.recompute()

boolean31 = doc.addObject("PartDesign::Boolean", "Boolean030")
body40.addObject(boolean31)
boolean31.Type = "Cut"
boolean31.addObjects([body34])
doc.recompute()

boolean32 = doc.addObject("PartDesign::Boolean", "Boolean031")
body40.addObject(boolean32)
boolean32.Type = "Fuse"
boolean32.addObjects([body32])
doc.recompute()

boolean33 = doc.addObject("PartDesign::Boolean", "Boolean032")
body40.addObject(boolean33)
boolean33.Type = "Fuse"
boolean33.addObjects([body27])
doc.recompute()

boolean34 = doc.addObject("PartDesign::Boolean", "Boolean033")
body40.addObject(boolean34)
boolean34.Type = "Cut"
boolean34.addObjects([body26])
doc.recompute()

boolean35 = doc.addObject("PartDesign::Boolean", "Boolean034")
body40.addObject(boolean35)
boolean35.Type = "Cut"
boolean35.addObjects([body20])
doc.recompute()

boolean36 = doc.addObject("PartDesign::Boolean", "Boolean035")
body40.addObject(boolean36)
boolean36.Type = "Fuse"
boolean36.addObjects([body17])
doc.recompute()

boolean37 = doc.addObject("PartDesign::Boolean", "Boolean036")
body40.addObject(boolean37)
boolean37.Type = "Cut"
boolean37.addObjects([body16])
doc.recompute()

boolean38 = doc.addObject("PartDesign::Boolean", "Boolean037")
body40.addObject(boolean38)
boolean38.Type = "Fuse"
boolean38.addObjects([body14])
doc.recompute()

boolean39 = doc.addObject("PartDesign::Boolean", "Boolean038")
body40.addObject(boolean39)
boolean39.Type = "Cut"
boolean39.addObjects([body7])
doc.recompute()

chamfer3 = doc.addObject("PartDesign::Chamfer", "Chamfer002")
body40.addObject(chamfer3)
chamfer3.Base = (boolean39, edges_at(boolean39, [(0, -13, 14.5)]))
chamfer3.Size = 2
doc.recompute()

fillet12 = doc.addObject("PartDesign::Fillet", "Fillet011")
body40.addObject(fillet12)
fillet12.Base = (chamfer3, edges_at(chamfer3, [(-1.994, -12.846, 14.5)]))
fillet12.Radius = 3
doc.recompute()

chamfer4 = doc.addObject("PartDesign::Chamfer", "Chamfer003")
body40.addObject(chamfer4)
chamfer4.Base = (fillet12, edges_at(fillet12, [(11.5, -6.062, 14.5)]))
chamfer4.Size = 3.49
doc.recompute()

chamfer5 = doc.addObject("PartDesign::Chamfer", "Chamfer004")
body40.addObject(chamfer5)
chamfer5.Base = (chamfer4, edges_at(chamfer4, [(7.954, -17.25, 12.5), (4.1, -17.25, 12.5)]))
chamfer5.Size = 1.5
doc.recompute()

fillet13 = doc.addObject("PartDesign::Fillet", "Fillet012")
body40.addObject(fillet13)
fillet13.Base = (chamfer5, edges_at(chamfer5, [(-1, -14, 15)]))
fillet13.Radius = 1.99
body41 = doc.addObject("PartDesign::Body", "Body040")
doc.recompute()

body40.Placement = App.Placement(V(0, 0, 1), App.Rotation(V(0, 0, 1), 0))
boolean40 = doc.addObject("PartDesign::Boolean", "Boolean039")
body41.addObject(boolean40)
boolean40.Type = "Fuse"
boolean40.addObjects([body40])
doc.recompute()

chamfer6 = doc.addObject("PartDesign::Chamfer", "Chamfer005")
body41.addObject(chamfer6)
chamfer6.Base = (boolean40, edges_at(boolean40, [(12, -8, 16)]))
chamfer6.Size = 1.5

doc.recompute()
